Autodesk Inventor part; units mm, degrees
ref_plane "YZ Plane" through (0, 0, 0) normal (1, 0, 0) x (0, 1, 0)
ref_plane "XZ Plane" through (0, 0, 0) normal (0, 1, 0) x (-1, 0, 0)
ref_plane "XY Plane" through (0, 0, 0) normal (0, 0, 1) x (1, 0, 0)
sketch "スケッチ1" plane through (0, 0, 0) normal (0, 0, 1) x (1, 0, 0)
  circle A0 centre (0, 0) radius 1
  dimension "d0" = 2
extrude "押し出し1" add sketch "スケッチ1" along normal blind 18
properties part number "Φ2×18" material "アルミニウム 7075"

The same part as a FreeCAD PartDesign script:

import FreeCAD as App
import Part
import Sketcher

V = App.Vector
Q = App.Units.Quantity

doc = App.newDocument("Part")
params = doc.addObject("Spreadsheet::Sheet", "Params")
for row, (alias, value) in enumerate([
    ("sketch1_diameter", "2 mm"),
    ("pad1_length", "18 mm"),
], start=1):
    params.set(f"A{row}", alias)
    params.set(f"B{row}", "=" + value)
    params.setAlias(f"B{row}", alias)

body = doc.addObject("PartDesign::Body", "Body")

sketch1 = doc.addObject("Sketcher::SketchObject", "Sketch")
body.addObject(sketch1)
sketch1.AttachmentSupport = (doc.XY_Plane, [""])
sketch1.MapMode = "FlatFace"
sketch1.addGeometry(Part.Circle(V(0, 0, 0), V(0, 0, 1), 1), False)
sketch1.addConstraint([
    Sketcher.Constraint("Coincident", 0, 3, -1, 1),
    Sketcher.Constraint("Diameter", 0, Q("2 mm")),
])
sketch1.setExpression("Constraints[1]", "Params.sketch1_diameter")
pad1 = doc.addObject("PartDesign::Pad", "Pad")
body.addObject(pad1)
pad1.Profile = sketch1
pad1.setExpression("Length", "Params.pad1_length")

doc.recompute()
